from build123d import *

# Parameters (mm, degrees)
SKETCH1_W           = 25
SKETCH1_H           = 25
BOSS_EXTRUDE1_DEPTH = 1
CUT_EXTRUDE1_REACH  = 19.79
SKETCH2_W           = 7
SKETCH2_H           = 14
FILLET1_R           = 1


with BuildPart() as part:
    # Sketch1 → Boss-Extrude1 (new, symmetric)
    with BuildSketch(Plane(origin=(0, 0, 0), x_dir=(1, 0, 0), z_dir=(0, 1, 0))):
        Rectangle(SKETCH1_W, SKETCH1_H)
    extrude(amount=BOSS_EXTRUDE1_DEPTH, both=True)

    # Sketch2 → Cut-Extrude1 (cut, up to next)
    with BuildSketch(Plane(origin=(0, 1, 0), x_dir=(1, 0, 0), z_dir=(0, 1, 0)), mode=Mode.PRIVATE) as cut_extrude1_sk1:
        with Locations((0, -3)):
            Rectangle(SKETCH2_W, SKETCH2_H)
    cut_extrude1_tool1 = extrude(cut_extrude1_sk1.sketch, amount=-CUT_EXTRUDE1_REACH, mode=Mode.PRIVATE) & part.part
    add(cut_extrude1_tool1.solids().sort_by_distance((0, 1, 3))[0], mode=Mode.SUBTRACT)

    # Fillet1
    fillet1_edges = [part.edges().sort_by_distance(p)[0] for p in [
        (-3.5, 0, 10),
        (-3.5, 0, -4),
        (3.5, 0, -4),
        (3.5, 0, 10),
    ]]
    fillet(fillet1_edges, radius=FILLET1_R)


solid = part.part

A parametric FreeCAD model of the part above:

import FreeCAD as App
import Part
import Sketcher

V = App.Vector
Q = App.Units.Quantity


def edges_at(feature, points):
    """Names of the edges that pass closest to the given points."""
    edges = feature.Shape.Edges
    near = lambda p: min(range(len(edges)), key=lambda i: edges[i].distToShape(Part.Vertex(*p))[0])
    return sorted({f"Edge{near(p) + 1}" for p in points})

doc = App.newDocument("Part")
body = doc.addObject("PartDesign::Body", "Body")

# Sketch on XZ plane
sketch1 = doc.addObject("Sketcher::SketchObject", "Sketch")
body.addObject(sketch1)
sketch1.AttachmentSupport = (doc.XZ_Plane, [""])
sketch1.MapMode = "FlatFace"
sketch1.addGeometry(Part.LineSegment(V(-12.5, -12.5, 0), V(-12.5, 12.5, 0)), False)
sketch1.addGeometry(Part.LineSegment(V(-12.5, 12.5, 0), V(12.5, 12.5, 0)), False)
sketch1.addGeometry(Part.LineSegment(V(12.5, 12.5, 0), V(12.5, -12.5, 0)), False)
sketch1.addGeometry(Part.LineSegment(V(12.5, -12.5, 0), V(-12.5, -12.5, 0)), False)
sketch1.addConstraint(Sketcher.Constraint("Coincident", 0, 2, 1, 1))
sketch1.addConstraint(Sketcher.Constraint("Coincident", 1, 2, 2, 1))
sketch1.addConstraint(Sketcher.Constraint("Coincident", 2, 2, 3, 1))
sketch1.addConstraint(Sketcher.Constraint("Coincident", 3, 2, 0, 1))
sketch1.addConstraint(Sketcher.Constraint("Vertical", 0))
sketch1.addConstraint(Sketcher.Constraint("Horizontal", 1))
sketch1.addConstraint(Sketcher.Constraint("Vertical", 2))
sketch1.addConstraint(Sketcher.Constraint("Horizontal", 3))
sketch1.addConstraint(Sketcher.Constraint("Symmetric", 0, 2, 2, 2, -1, 1))
sketch1.addConstraint(Sketcher.Constraint("Equal", 3, 0))
sketch1.addConstraint(Sketcher.Constraint("DistanceX", 1, 1, 1, 2, Q("25 mm")))
pad1 = doc.addObject("PartDesign::Pad", "Pad")
body.addObject(pad1)
pad1.Profile = sketch1
pad1.Length = 2
pad1.Midplane = True

# Sketch on XZ plane
sketch2 = doc.addObject("Sketcher::SketchObject", "Sketch001")
body.addObject(sketch2)
sketch2.AttachmentSupport = (doc.XZ_Plane, [""])
sketch2.MapMode = "FlatFace"
sketch2.AttachmentOffset = App.Placement(V(0, 0, -1), App.Rotation())
sketch2.addGeometry(Part.LineSegment(V(-3.5, -4, 0), V(-3.5, 10, 0)), False)
sketch2.addGeometry(Part.LineSegment(V(-3.5, 10, 0), V(3.5, 10, 0)), False)
sketch2.addGeometry(Part.LineSegment(V(3.5, 10, 0), V(3.5, -4, 0)), False)
sketch2.addGeometry(Part.LineSegment(V(3.5, -4, 0), V(-3.5, -4, 0)), False)
sketch2.addConstraint(Sketcher.Constraint("Coincident", 0, 2, 1, 1))
sketch2.addConstraint(Sketcher.Constraint("Coincident", 1, 2, 2, 1))
sketch2.addConstraint(Sketcher.Constraint("Coincident", 2, 2, 3, 1))
sketch2.addConstraint(Sketcher.Constraint("Coincident", 3, 2, 0, 1))
sketch2.addConstraint(Sketcher.Constraint("Vertical", 0))
sketch2.addConstraint(Sketcher.Constraint("Horizontal", 1))
sketch2.addConstraint(Sketcher.Constraint("Vertical", 2))
sketch2.addConstraint(Sketcher.Constraint("Horizontal", 3))
sketch2.addConstraint(Sketcher.Constraint("DistanceX", 1, 1, 1, 2, Q("7 mm")))
sketch2.addConstraint(Sketcher.Constraint("DistanceY", 0, 1, 0, 2, Q("14 mm")))
sketch2.addConstraint(Sketcher.Constraint("DistanceY", -1, 1, 0, 2, Q("10 mm")))
sketch2.addConstraint(Sketcher.Constraint("DistanceX", 0, 2, -1, 1, Q("3.5 mm")))
pocket1 = doc.addObject("PartDesign::Pocket", "Pocket")
body.addObject(pocket1)
pocket1.Profile = sketch2
pocket1.Type = "UpToFirst"
pocket1.Reversed = True
doc.recompute()

fillet = doc.addObject("PartDesign::Fillet", "Fillet")
body.addObject(fillet)
fillet.Base = (pocket1, edges_at(pocket1, [
    (-3.5, 0, 10),
    (-3.5, 0, -4),
    (3.5, 0, -4),
    (3.5, 0, 10),
]))
fillet.Radius = 1

doc.recompute()
